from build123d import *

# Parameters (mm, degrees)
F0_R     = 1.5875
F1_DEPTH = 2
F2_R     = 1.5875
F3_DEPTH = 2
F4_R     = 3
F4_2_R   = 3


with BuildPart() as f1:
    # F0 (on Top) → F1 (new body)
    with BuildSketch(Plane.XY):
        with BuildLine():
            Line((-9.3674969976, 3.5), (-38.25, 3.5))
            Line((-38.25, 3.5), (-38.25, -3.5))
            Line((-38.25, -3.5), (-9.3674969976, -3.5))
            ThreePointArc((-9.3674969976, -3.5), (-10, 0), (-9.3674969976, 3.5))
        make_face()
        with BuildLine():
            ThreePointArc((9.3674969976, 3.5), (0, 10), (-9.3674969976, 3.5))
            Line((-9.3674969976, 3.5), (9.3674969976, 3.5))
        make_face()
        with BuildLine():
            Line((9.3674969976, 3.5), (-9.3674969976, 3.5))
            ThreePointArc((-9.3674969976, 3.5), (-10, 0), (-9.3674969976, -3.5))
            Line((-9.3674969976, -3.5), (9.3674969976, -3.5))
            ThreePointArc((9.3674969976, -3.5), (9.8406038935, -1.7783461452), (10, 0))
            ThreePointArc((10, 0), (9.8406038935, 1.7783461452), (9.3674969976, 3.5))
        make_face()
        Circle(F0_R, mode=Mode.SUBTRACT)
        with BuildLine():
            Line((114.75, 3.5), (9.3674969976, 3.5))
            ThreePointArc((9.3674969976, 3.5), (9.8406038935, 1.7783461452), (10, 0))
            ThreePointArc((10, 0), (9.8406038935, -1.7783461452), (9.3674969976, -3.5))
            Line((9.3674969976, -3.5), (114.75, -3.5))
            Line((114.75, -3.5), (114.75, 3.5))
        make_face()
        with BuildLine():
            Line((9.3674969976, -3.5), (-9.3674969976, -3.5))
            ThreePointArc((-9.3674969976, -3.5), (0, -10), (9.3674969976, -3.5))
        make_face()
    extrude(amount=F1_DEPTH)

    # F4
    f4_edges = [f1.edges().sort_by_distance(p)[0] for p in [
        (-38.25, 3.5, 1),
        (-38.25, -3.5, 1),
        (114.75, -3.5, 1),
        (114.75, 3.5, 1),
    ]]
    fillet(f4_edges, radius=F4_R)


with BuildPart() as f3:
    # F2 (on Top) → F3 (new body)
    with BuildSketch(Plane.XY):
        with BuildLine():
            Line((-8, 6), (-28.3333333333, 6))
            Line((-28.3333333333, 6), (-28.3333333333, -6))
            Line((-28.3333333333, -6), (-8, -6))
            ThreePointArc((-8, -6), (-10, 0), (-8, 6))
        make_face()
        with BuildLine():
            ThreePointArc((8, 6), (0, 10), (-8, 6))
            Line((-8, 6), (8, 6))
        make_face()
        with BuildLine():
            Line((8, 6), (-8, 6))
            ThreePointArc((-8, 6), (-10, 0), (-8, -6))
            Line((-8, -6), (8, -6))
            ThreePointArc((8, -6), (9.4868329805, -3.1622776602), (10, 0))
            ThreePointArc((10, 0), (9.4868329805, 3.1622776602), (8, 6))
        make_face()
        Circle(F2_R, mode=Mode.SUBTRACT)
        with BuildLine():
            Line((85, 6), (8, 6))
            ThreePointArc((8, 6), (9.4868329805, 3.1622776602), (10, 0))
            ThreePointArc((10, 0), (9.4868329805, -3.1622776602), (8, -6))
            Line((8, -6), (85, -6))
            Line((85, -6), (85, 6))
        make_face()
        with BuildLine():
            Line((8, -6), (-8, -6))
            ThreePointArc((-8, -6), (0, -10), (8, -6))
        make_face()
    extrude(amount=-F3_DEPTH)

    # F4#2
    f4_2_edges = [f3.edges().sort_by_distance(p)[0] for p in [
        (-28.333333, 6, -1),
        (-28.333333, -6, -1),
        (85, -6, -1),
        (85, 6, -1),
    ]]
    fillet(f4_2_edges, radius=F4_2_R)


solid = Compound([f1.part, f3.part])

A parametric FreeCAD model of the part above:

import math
import FreeCAD as App
import Part
import Sketcher

V = App.Vector


def edges_at(feature, points):
    """Names of the edges that pass closest to the given points."""
    edges = feature.Shape.Edges
    near = lambda p: min(range(len(edges)), key=lambda i: edges[i].distToShape(Part.Vertex(*p))[0])
    return sorted({f"Edge{near(p) + 1}" for p in points})

doc = App.newDocument("Part")
body = doc.addObject("PartDesign::Body", "Body")

sketch1 = body.newObject("Sketcher::SketchObject", "Sketch")
sketch1.AttachmentSupport = (doc.getObject("XY_Plane"), [""])
sketch1.MapMode = "FlatFace"
sketch1.addGeometry([
    Part.LineSegment(V(-9.4, 3.5, 0), V(-38.2, 3.5, 0)),
    Part.LineSegment(V(-38.2, 3.5, 0), V(-38.2, -3.5, 0)),
    Part.LineSegment(V(-38.2, -3.5, 0), V(-9.4, -3.5, 0)),
    Part.ArcOfCircle(Part.Circle(V(0, 0, 0), V(0, 0, 1), 10), math.radians(-160), math.radians(-20)),
    Part.LineSegment(V(9.4, -3.5, 0), V(114.8, -3.5, 0)),
    Part.LineSegment(V(114.8, -3.5, 0), V(114.8, 3.5, 0)),
    Part.LineSegment(V(114.8, 3.5, 0), V(9.4, 3.5, 0)),
    Part.ArcOfCircle(Part.Circle(V(0, 0, 0), V(0, 0, 1), 10), math.radians(20), math.radians(160)),
    Part.Circle(V(0, 0, 0), V(0, 0, 1), 1.6),
], False)
sketch1.addConstraint([
    Sketcher.Constraint("Coincident", 0, 2, 1, 1),
    Sketcher.Constraint("Coincident", 1, 2, 2, 1),
    Sketcher.Constraint("Coincident", 2, 2, 3, 1),
    Sketcher.Constraint("Coincident", 3, 2, 4, 1),
    Sketcher.Constraint("Coincident", 4, 2, 5, 1),
    Sketcher.Constraint("Coincident", 5, 2, 6, 1),
    Sketcher.Constraint("Coincident", 6, 2, 7, 1),
    Sketcher.Constraint("Coincident", 7, 2, 0, 1),
    Sketcher.Constraint("Horizontal", 0),
    Sketcher.Constraint("Vertical", 1),
    Sketcher.Constraint("Horizontal", 2),
    Sketcher.Constraint("Horizontal", 4),
    Sketcher.Constraint("Vertical", 5),
    Sketcher.Constraint("Horizontal", 6),
    Sketcher.Constraint("Coincident", 3, 3, -1, 1),
    Sketcher.Constraint("Coincident", 7, 3, -1, 1),
    Sketcher.Constraint("Coincident", 8, 3, -1, 1),
    Sketcher.Constraint("Equal", 3, 7),
    Sketcher.Constraint("Horizontal", 2, 2, 3, 2),
    Sketcher.Constraint("Horizontal", 0, 2, 5, 2),
    Sketcher.Constraint("Vertical", 3, 2, 6, 2),
    Sketcher.Constraint("Radius", 3, 10.0),
    Sketcher.Constraint("DistanceY", 1, 2, 1, 1, 7.0),
    Sketcher.Constraint("Diameter", 8, 3.175),
    Sketcher.Constraint("DistanceX", 0, 2, -1, 1, 38.25),
    Sketcher.Constraint("DistanceX", -1, 1, 4, 2, 114.75),
])
pad1 = body.newObject("PartDesign::Pad", "Pad")
pad1.Profile = sketch1
pad1.Length = 2
doc.recompute()

fillet = body.newObject("PartDesign::Fillet", "Fillet")
fillet.Base = (pad1, edges_at(pad1, [
    (-38.25, 3.5, 1),
    (-38.25, -3.5, 1),
    (114.75, -3.5, 1),
    (114.75, 3.5, 1),
]))
fillet.Radius = 3
body2 = doc.addObject("PartDesign::Body", "Body001")

sketch2 = body2.newObject("Sketcher::SketchObject", "Sketch001")
sketch2.AttachmentSupport = (doc.getObject("XY_Plane001"), [""])
sketch2.MapMode = "FlatFace"
sketch2.addGeometry([
    Part.LineSegment(V(-8, 6, 0), V(-28.3, 6, 0)),
    Part.LineSegment(V(-28.3, 6, 0), V(-28.3, -6, 0)),
    Part.LineSegment(V(-28.3, -6, 0), V(-8, -6, 0)),
    Part.ArcOfCircle(Part.Circle(V(0, 0, 0), V(0, 0, 1), 10), math.radians(-143), math.radians(-37)),
    Part.LineSegment(V(8, -6, 0), V(85, -6, 0)),
    Part.LineSegment(V(85, -6, 0), V(85, 6, 0)),
    Part.LineSegment(V(85, 6, 0), V(8, 6, 0)),
    Part.ArcOfCircle(Part.Circle(V(0, 0, 0), V(0, 0, 1), 10), math.radians(37), math.radians(143)),
    Part.Circle(V(0, 0, 0), V(0, 0, 1), 1.6),
], False)
sketch2.addConstraint([
    Sketcher.Constraint("Coincident", 0, 2, 1, 1),
    Sketcher.Constraint("Coincident", 1, 2, 2, 1),
    Sketcher.Constraint("Coincident", 2, 2, 3, 1),
    Sketcher.Constraint("Coincident", 3, 2, 4, 1),
    Sketcher.Constraint("Coincident", 4, 2, 5, 1),
    Sketcher.Constraint("Coincident", 5, 2, 6, 1),
    Sketcher.Constraint("Coincident", 6, 2, 7, 1),
    Sketcher.Constraint("Coincident", 7, 2, 0, 1),
    Sketcher.Constraint("Horizontal", 0),
    Sketcher.Constraint("Vertical", 1),
    Sketcher.Constraint("Horizontal", 2),
    Sketcher.Constraint("Horizontal", 4),
    Sketcher.Constraint("Vertical", 5),
    Sketcher.Constraint("Horizontal", 6),
    Sketcher.Constraint("Coincident", 3, 3, -1, 1),
    Sketcher.Constraint("Coincident", 7, 3, -1, 1),
    Sketcher.Constraint("Coincident", 8, 3, -1, 1),
    Sketcher.Constraint("Equal", 3, 7),
    Sketcher.Constraint("Horizontal", 2, 2, 3, 2),
    Sketcher.Constraint("Horizontal", 0, 2, 5, 2),
    Sketcher.Constraint("Vertical", 3, 2, 6, 2),
    Sketcher.Constraint("Radius", 3, 10.0),
    Sketcher.Constraint("DistanceX", 4, 1, 4, 2, 77.0),
    Sketcher.Constraint("DistanceY", 1, 2, 1, 1, 12.0),
    Sketcher.Constraint("Diameter", 8, 3.175),
    Sketcher.Constraint("DistanceX", 0, 2, 0, 1, 20.333333),
])
pad2 = body2.newObject("PartDesign::Pad", "Pad001")
pad2.Profile = sketch2
pad2.Length = 2
pad2.Reversed = True
doc.recompute()

fillet2 = body2.newObject("PartDesign::Fillet", "Fillet001")
fillet2.Base = (pad2, edges_at(pad2, [
    (-28.333, 6, -1),
    (-28.333, -6, -1),
    (85, -6, -1),
    (85, 6, -1),
]))
fillet2.Radius = 3

doc.recompute()
